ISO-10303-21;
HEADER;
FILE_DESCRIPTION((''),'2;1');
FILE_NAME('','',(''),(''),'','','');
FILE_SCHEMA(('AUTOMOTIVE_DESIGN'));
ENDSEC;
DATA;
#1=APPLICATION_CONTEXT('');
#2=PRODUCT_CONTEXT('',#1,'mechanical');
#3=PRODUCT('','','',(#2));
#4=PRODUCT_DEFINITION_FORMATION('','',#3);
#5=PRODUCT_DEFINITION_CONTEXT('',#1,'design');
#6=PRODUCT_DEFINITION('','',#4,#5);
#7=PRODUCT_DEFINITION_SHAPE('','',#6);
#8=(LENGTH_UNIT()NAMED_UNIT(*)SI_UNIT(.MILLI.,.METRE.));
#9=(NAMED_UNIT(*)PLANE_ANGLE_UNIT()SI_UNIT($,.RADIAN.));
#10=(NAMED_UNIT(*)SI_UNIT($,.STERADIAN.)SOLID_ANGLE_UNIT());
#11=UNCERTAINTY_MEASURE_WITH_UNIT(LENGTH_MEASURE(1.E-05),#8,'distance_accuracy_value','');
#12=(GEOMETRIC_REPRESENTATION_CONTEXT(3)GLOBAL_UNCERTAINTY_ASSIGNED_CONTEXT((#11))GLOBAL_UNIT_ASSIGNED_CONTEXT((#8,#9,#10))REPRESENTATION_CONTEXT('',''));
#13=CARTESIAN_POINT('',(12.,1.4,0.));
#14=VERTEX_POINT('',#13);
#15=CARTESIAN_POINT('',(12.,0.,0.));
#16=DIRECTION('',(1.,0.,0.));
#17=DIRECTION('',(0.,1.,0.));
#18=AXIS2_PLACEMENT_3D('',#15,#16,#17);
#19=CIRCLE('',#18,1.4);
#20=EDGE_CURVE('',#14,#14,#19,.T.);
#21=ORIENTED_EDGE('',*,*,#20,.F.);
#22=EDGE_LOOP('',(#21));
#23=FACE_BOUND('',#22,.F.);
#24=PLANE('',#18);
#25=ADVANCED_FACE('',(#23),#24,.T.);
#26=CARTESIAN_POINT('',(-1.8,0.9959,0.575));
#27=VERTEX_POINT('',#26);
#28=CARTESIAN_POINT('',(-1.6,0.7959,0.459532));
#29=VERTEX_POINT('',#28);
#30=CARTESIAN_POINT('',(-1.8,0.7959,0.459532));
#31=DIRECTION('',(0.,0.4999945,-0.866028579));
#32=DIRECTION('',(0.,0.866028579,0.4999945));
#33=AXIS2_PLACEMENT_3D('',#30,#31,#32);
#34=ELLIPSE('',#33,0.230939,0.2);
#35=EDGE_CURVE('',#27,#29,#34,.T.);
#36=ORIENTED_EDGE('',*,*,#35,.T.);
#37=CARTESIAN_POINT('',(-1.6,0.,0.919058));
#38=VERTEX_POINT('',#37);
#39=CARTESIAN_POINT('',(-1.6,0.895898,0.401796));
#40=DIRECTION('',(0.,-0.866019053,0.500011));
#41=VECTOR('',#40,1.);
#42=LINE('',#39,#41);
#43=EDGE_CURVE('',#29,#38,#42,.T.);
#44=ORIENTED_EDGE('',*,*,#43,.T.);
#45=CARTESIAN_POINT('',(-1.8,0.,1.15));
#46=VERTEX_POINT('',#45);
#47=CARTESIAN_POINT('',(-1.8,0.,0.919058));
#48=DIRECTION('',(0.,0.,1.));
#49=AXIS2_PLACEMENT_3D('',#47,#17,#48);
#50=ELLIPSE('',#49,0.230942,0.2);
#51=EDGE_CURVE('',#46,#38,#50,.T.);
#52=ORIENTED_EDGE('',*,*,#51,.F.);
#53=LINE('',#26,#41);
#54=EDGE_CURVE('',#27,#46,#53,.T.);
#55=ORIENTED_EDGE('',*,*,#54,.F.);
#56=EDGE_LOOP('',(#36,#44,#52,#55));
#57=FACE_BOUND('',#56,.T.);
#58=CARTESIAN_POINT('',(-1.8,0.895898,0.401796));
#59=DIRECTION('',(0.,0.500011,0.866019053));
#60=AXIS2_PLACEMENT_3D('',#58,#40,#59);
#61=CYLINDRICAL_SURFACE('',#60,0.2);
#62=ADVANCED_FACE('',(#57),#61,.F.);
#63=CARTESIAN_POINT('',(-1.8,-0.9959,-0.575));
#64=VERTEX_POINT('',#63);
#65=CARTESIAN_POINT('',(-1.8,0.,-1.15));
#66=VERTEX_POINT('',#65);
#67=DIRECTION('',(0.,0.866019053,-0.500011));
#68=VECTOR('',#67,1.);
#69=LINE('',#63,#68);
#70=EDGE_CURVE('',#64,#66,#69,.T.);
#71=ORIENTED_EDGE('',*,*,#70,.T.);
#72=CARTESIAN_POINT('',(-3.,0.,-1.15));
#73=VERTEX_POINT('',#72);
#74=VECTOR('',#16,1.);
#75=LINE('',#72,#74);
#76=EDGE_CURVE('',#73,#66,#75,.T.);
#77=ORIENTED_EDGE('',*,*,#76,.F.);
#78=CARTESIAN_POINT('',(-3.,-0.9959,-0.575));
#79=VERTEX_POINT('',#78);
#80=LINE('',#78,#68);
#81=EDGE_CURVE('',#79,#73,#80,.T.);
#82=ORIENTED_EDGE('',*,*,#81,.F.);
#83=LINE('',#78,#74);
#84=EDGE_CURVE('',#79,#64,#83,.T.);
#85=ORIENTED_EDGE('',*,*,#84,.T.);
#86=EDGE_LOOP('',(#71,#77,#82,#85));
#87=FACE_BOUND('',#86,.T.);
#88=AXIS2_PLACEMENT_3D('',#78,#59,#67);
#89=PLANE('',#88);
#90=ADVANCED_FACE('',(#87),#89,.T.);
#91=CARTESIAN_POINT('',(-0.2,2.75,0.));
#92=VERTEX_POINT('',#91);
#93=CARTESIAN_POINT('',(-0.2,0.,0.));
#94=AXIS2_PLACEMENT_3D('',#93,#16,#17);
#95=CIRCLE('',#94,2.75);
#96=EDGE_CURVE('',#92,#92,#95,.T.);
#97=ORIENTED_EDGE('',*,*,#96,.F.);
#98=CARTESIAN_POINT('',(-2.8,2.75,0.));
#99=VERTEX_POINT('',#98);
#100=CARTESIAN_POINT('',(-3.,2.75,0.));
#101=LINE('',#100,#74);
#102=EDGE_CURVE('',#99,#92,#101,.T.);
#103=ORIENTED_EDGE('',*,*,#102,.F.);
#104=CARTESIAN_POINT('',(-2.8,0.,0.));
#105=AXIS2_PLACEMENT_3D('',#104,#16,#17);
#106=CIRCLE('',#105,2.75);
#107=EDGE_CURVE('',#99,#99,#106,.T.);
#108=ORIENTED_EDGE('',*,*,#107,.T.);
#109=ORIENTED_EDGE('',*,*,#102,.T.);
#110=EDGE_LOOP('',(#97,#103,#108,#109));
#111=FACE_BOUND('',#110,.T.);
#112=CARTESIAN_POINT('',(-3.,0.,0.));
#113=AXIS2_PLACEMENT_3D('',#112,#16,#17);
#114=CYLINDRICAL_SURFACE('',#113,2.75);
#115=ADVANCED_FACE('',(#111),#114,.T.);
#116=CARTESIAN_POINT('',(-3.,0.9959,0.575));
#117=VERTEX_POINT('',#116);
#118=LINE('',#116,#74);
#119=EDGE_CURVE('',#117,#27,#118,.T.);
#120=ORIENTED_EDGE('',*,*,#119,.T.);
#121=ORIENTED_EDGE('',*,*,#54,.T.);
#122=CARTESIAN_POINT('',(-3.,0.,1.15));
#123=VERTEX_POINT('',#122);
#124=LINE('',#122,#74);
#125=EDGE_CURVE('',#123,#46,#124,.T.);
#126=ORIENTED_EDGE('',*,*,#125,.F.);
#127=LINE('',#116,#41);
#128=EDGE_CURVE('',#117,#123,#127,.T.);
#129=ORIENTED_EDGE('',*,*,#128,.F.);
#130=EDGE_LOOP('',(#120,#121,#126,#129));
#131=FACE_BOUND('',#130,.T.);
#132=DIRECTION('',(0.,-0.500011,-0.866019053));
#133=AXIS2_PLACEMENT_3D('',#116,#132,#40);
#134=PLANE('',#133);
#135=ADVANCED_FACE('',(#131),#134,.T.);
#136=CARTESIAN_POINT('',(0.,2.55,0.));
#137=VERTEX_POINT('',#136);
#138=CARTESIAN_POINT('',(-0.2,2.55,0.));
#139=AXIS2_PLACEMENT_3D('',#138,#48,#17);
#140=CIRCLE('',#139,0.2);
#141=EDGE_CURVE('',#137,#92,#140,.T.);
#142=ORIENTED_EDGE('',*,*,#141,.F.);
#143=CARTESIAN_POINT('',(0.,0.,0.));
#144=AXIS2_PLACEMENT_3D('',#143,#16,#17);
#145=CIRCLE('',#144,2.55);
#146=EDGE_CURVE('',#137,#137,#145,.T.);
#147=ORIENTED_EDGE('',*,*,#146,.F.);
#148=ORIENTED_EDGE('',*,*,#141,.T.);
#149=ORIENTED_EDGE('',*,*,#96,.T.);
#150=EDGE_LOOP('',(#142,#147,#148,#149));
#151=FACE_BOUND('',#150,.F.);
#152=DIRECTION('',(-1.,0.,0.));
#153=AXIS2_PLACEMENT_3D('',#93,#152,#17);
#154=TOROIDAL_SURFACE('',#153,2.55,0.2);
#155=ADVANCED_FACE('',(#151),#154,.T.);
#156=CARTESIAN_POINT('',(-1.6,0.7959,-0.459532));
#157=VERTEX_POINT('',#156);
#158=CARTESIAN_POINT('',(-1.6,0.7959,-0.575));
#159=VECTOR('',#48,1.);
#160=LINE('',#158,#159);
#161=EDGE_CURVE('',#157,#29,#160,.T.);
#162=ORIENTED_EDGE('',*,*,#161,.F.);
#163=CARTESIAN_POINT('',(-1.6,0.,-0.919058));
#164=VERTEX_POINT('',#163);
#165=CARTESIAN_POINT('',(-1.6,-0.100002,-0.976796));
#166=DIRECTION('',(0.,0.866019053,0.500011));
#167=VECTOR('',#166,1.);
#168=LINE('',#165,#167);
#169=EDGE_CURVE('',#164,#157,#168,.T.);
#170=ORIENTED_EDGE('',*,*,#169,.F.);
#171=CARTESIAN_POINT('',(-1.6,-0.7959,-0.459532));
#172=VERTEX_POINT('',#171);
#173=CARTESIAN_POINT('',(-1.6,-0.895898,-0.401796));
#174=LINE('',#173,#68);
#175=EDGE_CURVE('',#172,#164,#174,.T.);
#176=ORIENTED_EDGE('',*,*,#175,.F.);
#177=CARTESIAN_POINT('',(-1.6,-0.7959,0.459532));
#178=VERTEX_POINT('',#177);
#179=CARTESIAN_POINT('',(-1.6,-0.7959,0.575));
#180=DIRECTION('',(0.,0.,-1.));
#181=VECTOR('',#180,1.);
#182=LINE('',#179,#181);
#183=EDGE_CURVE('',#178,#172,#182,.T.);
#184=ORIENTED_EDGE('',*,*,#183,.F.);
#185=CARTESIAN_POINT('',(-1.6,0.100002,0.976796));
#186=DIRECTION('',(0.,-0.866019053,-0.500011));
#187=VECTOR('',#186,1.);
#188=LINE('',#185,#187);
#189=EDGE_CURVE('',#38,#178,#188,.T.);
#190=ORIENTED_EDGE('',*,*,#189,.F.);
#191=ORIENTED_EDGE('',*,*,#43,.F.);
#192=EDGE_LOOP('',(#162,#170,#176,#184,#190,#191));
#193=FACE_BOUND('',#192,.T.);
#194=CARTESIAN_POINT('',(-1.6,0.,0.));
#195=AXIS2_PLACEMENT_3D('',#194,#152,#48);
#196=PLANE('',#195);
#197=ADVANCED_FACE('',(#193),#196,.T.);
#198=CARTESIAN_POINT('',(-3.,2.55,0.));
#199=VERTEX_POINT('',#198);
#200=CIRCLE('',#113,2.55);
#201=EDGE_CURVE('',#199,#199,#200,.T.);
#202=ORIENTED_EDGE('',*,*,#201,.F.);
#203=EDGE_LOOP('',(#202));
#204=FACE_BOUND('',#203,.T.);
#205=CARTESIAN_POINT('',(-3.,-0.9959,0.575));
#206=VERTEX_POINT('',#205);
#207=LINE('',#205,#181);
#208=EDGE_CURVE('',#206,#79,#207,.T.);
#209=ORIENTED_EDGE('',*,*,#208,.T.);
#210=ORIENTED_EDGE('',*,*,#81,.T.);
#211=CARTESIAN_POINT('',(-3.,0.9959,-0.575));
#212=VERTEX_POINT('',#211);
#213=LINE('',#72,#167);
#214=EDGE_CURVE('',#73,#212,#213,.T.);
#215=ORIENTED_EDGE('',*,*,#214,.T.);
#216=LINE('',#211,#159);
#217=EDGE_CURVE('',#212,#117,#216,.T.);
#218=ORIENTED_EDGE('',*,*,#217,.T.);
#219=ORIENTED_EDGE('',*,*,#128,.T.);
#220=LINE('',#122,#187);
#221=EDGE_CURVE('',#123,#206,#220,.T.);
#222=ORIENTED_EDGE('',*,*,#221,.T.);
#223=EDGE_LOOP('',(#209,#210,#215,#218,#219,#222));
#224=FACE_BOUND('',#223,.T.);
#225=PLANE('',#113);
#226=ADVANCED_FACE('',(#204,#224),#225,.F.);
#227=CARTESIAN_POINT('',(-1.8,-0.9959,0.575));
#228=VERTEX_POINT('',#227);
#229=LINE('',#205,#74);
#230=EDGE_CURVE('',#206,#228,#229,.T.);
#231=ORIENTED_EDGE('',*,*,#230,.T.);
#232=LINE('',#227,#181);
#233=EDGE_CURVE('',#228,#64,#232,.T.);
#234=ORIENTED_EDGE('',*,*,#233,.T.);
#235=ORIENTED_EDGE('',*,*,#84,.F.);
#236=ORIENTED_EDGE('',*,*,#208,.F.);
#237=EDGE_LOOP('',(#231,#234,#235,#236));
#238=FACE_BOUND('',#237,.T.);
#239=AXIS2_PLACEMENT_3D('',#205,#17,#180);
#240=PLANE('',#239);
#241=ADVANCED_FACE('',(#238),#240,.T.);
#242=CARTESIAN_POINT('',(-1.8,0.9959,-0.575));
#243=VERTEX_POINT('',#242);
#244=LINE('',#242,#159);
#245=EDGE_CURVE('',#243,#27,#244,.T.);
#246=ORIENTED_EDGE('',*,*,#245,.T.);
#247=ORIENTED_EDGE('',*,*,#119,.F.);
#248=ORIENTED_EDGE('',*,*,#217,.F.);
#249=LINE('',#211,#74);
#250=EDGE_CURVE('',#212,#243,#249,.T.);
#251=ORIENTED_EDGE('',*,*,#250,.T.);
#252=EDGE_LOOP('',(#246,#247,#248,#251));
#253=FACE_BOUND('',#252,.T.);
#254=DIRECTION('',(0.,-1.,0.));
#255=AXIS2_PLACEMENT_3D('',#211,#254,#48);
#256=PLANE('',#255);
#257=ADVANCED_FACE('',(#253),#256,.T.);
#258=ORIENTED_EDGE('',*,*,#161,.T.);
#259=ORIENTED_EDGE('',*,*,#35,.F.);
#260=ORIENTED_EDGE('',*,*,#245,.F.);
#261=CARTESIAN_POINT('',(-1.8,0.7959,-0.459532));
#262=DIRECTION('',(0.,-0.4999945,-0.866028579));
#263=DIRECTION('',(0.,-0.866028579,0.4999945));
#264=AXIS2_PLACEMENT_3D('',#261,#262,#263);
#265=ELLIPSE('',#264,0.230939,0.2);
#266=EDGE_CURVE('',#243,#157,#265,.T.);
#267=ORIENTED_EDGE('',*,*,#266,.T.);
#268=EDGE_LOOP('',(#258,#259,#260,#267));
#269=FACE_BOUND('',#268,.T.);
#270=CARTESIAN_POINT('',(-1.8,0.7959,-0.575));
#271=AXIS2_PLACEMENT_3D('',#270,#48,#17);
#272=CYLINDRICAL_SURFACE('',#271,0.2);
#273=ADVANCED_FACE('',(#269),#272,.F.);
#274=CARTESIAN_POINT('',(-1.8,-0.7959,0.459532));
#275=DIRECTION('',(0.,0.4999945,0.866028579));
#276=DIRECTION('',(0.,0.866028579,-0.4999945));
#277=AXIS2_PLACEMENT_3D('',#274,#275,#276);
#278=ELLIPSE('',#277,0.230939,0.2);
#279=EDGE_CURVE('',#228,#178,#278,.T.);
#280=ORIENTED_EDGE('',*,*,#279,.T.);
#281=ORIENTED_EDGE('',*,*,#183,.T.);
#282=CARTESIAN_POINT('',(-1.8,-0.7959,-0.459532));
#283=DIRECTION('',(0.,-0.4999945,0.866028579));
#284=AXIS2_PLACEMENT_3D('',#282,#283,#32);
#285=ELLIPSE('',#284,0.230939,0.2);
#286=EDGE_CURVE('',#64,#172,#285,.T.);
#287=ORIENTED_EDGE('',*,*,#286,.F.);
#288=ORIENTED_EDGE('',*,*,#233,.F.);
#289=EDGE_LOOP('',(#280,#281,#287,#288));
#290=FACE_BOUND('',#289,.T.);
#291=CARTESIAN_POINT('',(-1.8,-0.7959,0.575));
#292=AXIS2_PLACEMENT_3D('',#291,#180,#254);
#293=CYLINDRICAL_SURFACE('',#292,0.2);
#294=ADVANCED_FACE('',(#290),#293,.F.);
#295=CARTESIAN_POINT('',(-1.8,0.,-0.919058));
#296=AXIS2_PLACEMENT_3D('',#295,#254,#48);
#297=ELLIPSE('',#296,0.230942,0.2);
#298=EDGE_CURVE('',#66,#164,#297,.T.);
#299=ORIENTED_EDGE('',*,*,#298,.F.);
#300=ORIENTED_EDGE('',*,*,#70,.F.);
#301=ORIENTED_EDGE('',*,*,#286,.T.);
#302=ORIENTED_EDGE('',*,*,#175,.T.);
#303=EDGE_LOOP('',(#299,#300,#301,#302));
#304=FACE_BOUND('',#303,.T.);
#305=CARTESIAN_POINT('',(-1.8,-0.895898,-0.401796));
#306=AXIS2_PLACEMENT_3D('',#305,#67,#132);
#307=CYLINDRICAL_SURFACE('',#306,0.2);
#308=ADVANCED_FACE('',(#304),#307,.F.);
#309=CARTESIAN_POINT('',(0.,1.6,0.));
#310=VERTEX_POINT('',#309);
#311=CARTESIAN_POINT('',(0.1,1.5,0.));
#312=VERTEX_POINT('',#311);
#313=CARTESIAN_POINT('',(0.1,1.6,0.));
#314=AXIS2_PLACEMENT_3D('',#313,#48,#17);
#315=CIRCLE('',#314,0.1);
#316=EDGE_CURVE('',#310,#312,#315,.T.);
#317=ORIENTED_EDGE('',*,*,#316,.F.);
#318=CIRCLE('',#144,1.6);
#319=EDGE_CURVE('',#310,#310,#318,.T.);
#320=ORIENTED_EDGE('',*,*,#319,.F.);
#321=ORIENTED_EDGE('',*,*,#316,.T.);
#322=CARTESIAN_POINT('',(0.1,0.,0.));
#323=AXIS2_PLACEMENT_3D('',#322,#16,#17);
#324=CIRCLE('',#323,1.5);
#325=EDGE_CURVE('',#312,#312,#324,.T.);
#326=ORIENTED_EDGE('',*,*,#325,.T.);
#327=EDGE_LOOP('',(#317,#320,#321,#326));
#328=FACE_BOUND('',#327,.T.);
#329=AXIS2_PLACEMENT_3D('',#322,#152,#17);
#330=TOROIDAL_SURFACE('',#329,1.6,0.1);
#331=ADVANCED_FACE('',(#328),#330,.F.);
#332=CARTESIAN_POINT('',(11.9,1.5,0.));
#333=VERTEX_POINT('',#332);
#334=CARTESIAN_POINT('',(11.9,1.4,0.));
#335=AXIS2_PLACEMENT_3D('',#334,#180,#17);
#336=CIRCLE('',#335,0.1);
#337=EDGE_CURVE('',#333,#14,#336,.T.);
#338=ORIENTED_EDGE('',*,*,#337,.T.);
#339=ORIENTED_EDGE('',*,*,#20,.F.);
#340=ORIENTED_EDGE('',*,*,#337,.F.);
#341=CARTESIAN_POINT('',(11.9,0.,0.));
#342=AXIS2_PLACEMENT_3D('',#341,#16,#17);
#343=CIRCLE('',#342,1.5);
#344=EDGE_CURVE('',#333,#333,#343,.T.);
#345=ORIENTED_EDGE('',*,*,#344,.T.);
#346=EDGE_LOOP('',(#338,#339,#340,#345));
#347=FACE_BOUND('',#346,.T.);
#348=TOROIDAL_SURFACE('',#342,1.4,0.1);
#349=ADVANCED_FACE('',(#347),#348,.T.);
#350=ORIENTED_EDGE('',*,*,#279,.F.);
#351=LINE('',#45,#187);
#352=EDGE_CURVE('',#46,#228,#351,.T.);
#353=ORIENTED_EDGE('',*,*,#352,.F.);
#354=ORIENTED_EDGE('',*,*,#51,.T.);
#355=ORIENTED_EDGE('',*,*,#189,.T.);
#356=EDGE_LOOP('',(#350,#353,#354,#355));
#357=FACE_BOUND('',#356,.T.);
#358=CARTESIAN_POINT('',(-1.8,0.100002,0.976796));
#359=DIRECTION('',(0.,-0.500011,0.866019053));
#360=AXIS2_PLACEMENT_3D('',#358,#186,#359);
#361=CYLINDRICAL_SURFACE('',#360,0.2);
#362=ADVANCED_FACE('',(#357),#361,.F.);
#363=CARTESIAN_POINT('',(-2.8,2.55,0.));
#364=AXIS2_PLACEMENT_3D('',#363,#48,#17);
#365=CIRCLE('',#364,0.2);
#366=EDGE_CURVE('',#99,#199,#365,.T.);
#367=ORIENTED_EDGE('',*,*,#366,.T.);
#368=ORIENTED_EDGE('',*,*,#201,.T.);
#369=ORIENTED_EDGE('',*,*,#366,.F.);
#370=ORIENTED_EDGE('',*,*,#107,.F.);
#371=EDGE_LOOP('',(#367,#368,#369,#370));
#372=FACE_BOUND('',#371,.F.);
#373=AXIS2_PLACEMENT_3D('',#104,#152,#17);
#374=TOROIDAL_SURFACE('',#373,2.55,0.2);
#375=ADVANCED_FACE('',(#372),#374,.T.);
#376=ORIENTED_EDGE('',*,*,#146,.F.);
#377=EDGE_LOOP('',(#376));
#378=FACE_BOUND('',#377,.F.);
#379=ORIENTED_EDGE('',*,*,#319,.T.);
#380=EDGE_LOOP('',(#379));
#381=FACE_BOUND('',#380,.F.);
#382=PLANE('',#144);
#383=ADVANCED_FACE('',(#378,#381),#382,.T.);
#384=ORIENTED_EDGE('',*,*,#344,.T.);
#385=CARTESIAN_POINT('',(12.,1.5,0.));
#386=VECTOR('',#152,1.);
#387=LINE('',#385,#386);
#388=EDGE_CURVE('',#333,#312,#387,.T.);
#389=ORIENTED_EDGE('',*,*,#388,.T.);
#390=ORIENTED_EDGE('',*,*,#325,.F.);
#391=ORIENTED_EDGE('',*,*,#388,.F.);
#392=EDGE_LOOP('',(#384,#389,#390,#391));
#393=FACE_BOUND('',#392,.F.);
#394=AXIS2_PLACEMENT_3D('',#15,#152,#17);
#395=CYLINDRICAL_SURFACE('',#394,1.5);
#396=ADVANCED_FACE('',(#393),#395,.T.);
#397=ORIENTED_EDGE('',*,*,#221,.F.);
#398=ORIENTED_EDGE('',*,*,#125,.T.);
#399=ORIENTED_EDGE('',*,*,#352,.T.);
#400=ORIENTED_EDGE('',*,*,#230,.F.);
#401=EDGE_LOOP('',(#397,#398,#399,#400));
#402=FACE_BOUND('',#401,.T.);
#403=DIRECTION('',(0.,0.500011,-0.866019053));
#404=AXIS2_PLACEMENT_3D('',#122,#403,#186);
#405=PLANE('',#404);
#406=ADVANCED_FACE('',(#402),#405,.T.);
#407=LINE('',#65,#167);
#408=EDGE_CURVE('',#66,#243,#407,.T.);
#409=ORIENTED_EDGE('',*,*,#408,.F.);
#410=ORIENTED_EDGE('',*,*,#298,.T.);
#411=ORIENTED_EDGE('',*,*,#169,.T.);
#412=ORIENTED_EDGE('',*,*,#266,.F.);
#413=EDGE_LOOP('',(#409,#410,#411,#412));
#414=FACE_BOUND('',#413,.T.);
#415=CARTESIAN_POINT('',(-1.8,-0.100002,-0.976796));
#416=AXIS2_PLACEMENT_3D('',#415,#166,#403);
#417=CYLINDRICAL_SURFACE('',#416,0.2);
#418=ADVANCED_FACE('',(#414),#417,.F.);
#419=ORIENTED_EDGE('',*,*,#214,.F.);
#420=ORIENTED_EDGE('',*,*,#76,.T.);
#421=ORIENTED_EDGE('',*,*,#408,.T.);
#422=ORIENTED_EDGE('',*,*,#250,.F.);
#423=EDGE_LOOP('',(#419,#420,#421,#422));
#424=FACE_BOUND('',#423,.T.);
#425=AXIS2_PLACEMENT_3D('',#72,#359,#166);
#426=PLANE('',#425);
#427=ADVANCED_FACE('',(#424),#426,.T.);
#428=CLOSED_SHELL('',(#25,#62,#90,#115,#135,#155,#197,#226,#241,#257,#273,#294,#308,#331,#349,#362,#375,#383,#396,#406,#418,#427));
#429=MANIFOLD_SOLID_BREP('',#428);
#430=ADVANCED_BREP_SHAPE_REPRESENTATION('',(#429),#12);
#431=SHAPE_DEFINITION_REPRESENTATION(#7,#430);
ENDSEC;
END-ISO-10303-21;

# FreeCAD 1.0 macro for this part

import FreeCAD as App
import Part
import Sketcher

V = App.Vector
Q = App.Units.Quantity


def edges_at(feature, points):
    """Names of the edges that pass closest to the given points."""
    edges = feature.Shape.Edges
    near = lambda p: min(range(len(edges)), key=lambda i: edges[i].distToShape(Part.Vertex(*p))[0])
    return sorted({f"Edge{near(p) + 1}" for p in points})

doc = App.newDocument("Part")
body = doc.addObject("PartDesign::Body", "Body")

sketch1 = body.newObject("Sketcher::SketchObject", "Sketch")
sketch1.AttachmentSupport = (doc.getObject("XY_Plane"), [""])
sketch1.MapMode = "FlatFace"
sketch1.addGeometry([
    Part.LineSegment(V(12, 1.5, 0), V(0, 1.5, 0)),
    Part.LineSegment(V(0, 1.5, 0), V(0, 2.8, 0)),
    Part.LineSegment(V(0, 2.8, 0), V(-3, 2.8, 0)),
    Part.LineSegment(V(-3, 2.8, 0), V(-3, 0, 0)),
    Part.LineSegment(V(-3, 0, 0), V(12, 0, 0)),
    Part.LineSegment(V(12, 0, 0), V(12, 1.5, 0)),
], False)
sketch1.addConstraint([
    Sketcher.Constraint("Coincident", 0, 2, 1, 1),
    Sketcher.Constraint("Coincident", 1, 2, 2, 1),
    Sketcher.Constraint("Coincident", 2, 2, 3, 1),
    Sketcher.Constraint("Coincident", 3, 2, 4, 1),
    Sketcher.Constraint("Coincident", 4, 2, 5, 1),
    Sketcher.Constraint("Coincident", 5, 2, 0, 1),
    Sketcher.Constraint("Horizontal", 0),
    Sketcher.Constraint("Vertical", 1),
    Sketcher.Constraint("Horizontal", 2),
    Sketcher.Constraint("Vertical", 3),
    Sketcher.Constraint("Horizontal", 4),
    Sketcher.Constraint("Vertical", 5),
    Sketcher.Constraint("PointOnObject", 0, 2, -2),
    Sketcher.Constraint("PointOnObject", 3, 2, -1),
    Sketcher.Constraint("DistanceX", 0, 2, 0, 1, Q("12 mm")),
    Sketcher.Constraint("DistanceX", 2, 2, 2, 1, Q("3 mm")),
    Sketcher.Constraint("DistanceY", 5, 1, 5, 2, Q("1.5 mm")),
    Sketcher.Constraint("DistanceY", 3, 2, 3, 1, Q("2.75 mm")),
])
revolution = body.newObject("PartDesign::Revolution", "Revolution")
revolution.Profile = sketch1
revolution.ReferenceAxis = (sketch1, ["H_Axis"])
revolution.Angle = 360

sketch2 = body.newObject("Sketcher::SketchObject", "Sketch001")
sketch2.AttachmentSupport = (doc.getObject("YZ_Plane"), [""])
sketch2.MapMode = "FlatFace"
sketch2.AttachmentOffset = App.Placement(V(0, 0, -3), App.Rotation())
sketch2.addGeometry([
    Part.LineSegment(V(-1, 0.6, 0), V(0, 1.1, 0)),
    Part.LineSegment(V(0, 1.1, 0), V(1, 0.6, 0)),
    Part.LineSegment(V(1, 0.6, 0), V(1, -0.6, 0)),
    Part.LineSegment(V(1, -0.6, 0), V(0, -1.1, 0)),
    Part.LineSegment(V(0, -1.1, 0), V(-1, -0.6, 0)),
    Part.LineSegment(V(-1, -0.6, 0), V(-1, 0.6, 0)),
], False)
sketch2.addConstraint([
    Sketcher.Constraint("Coincident", 0, 2, 1, 1),
    Sketcher.Constraint("Coincident", 1, 2, 2, 1),
    Sketcher.Constraint("Coincident", 2, 2, 3, 1),
    Sketcher.Constraint("Coincident", 3, 2, 4, 1),
    Sketcher.Constraint("Coincident", 4, 2, 5, 1),
    Sketcher.Constraint("Coincident", 5, 2, 0, 1),
    Sketcher.Constraint("Vertical", 2),
    Sketcher.Constraint("Vertical", 5),
    Sketcher.Constraint("Symmetric", 0, 2, 3, 2, -1, 1),
    Sketcher.Constraint("Symmetric", 1, 2, 4, 2, -1, 1),
    Sketcher.Constraint("PointOnObject", 0, 2, -2),
    Sketcher.Constraint("Parallel", 0, 3),
    Sketcher.Constraint("Horizontal", 2, 2, 4, 2),
    Sketcher.Constraint("DistanceY", 2, 2, 2, 1, Q("1.15 mm")),
    Sketcher.Constraint("Distance", 0, Q("1.15 mm")),
    Sketcher.Constraint("DistanceY", -1, 1, 0, 2, Q("1.15 mm")),
])
pocket1 = body.newObject("PartDesign::Pocket", "Pocket")
pocket1.Profile = sketch2
pocket1.Length = 1.4
pocket1.Reversed = True
doc.recompute()

fillet = body.newObject("PartDesign::Fillet", "Fillet")
fillet.Base = (pocket1, edges_at(pocket1, [
    (-1.6, 0.996, 0),
    (-1.6, 0.498, 0.863),
    (-1.6, 0.498, -0.863),
    (-1.6, -0.498, -0.863),
    (-1.6, -0.996, 0),
    (-1.6, -0.498, 0.863),
    (-3, -2.75, 0),
    (0, -2.75, 0),
]))
fillet.Radius = 0.2
doc.recompute()

fillet2 = body.newObject("PartDesign::Fillet", "Fillet001")
fillet2.Base = (fillet, edges_at(fillet, [(0, -1.5, 0)]))
fillet2.Radius = 0.1
doc.recompute()

fillet3 = body.newObject("PartDesign::Fillet", "Fillet002")
fillet3.Base = (fillet2, edges_at(fillet2, [(12, -1.5, 0)]))
fillet3.Radius = 0.1

doc.recompute()
